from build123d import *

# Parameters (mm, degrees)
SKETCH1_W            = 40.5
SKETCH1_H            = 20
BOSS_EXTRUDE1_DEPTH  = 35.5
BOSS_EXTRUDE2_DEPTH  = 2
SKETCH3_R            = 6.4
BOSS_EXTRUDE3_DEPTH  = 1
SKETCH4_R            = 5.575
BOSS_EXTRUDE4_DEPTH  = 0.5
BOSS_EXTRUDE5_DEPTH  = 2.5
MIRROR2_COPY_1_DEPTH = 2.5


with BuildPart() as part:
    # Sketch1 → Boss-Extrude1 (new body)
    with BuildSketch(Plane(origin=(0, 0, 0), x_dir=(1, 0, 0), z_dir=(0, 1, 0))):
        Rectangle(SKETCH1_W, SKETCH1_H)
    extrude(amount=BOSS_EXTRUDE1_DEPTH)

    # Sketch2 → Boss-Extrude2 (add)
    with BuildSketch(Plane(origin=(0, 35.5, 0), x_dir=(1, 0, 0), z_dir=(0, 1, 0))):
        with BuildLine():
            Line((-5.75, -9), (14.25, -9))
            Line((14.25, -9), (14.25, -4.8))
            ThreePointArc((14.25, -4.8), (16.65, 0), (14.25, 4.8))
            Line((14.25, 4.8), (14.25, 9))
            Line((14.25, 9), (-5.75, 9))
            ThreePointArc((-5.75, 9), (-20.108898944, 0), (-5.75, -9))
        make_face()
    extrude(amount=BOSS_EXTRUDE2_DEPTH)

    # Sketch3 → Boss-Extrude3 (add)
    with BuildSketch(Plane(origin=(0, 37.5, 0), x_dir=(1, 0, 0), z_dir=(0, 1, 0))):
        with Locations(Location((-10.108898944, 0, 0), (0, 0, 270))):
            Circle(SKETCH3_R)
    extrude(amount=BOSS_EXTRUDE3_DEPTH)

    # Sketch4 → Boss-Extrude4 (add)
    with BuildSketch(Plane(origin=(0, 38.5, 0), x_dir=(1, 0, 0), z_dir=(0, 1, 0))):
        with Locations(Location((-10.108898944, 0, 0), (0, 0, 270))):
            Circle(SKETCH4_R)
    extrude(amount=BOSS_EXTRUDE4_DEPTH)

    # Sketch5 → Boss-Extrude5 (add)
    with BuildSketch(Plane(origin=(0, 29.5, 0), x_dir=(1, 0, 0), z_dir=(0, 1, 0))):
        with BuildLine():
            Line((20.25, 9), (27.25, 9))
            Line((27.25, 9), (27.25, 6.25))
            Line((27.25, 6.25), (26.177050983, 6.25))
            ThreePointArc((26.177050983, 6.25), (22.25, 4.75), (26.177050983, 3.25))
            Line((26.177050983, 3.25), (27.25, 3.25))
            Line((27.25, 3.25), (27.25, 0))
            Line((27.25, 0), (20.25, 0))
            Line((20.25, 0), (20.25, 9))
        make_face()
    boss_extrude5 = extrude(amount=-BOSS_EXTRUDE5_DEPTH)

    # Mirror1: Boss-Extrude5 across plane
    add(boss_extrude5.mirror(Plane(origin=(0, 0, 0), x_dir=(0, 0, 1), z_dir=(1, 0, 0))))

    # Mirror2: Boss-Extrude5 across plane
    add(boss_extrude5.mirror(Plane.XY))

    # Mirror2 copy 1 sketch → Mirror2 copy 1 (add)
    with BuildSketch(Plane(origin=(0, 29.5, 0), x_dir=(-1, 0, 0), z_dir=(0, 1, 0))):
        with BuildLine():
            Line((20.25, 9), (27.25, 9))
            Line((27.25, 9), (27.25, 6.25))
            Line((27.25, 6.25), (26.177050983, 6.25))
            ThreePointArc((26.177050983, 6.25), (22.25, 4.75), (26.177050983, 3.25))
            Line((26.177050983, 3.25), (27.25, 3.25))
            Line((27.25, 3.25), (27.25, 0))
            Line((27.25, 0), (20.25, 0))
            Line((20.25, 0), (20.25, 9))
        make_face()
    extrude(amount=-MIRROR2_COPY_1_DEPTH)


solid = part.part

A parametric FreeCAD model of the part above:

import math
import FreeCAD as App
import Part
import Sketcher

V = App.Vector
Q = App.Units.Quantity

doc = App.newDocument("Part")
body = doc.addObject("PartDesign::Body", "Body")

sketch1 = body.newObject("Sketcher::SketchObject", "Sketch")
sketch1.AttachmentSupport = (doc.getObject("XZ_Plane"), [""])
sketch1.MapMode = "FlatFace"
sketch1.addGeometry([
    Part.LineSegment(V(-20, -10, 0), V(-20, 10, 0)),
    Part.LineSegment(V(-20, 10, 0), V(20, 10, 0)),
    Part.LineSegment(V(20, 10, 0), V(20, -10, 0)),
    Part.LineSegment(V(20, -10, 0), V(-20, -10, 0)),
], False)
sketch1.addConstraint([
    Sketcher.Constraint("Coincident", 0, 2, 1, 1),
    Sketcher.Constraint("Coincident", 1, 2, 2, 1),
    Sketcher.Constraint("Coincident", 2, 2, 3, 1),
    Sketcher.Constraint("Coincident", 3, 2, 0, 1),
    Sketcher.Constraint("Vertical", 0),
    Sketcher.Constraint("Horizontal", 1),
    Sketcher.Constraint("Vertical", 2),
    Sketcher.Constraint("Horizontal", 3),
    Sketcher.Constraint("Symmetric", 0, 2, 2, 2, -1, 1),
    Sketcher.Constraint("DistanceY", 0, 1, 0, 2, Q("20 mm")),
    Sketcher.Constraint("DistanceX", 1, 1, 1, 2, Q("40.5 mm")),
])
pad1 = body.newObject("PartDesign::Pad", "Pad")
pad1.Profile = sketch1
pad1.Length = 35.5
pad1.Reversed = True

sketch2 = body.newObject("Sketcher::SketchObject", "Sketch001")
sketch2.AttachmentSupport = (doc.getObject("XZ_Plane"), [""])
sketch2.MapMode = "FlatFace"
sketch2.AttachmentOffset = App.Placement(V(0, 0, -35.5), App.Rotation())
sketch2.addGeometry([
    Part.LineSegment(V(-5.8, 9, 0), V(14.2, 9, 0)),
    Part.LineSegment(V(14.2, 9, 0), V(14.2, 4.8, 0)),
    Part.ArcOfCircle(Part.Circle(V(10.7, 0, 0), V(0, 0, 1), 6), math.radians(-53), math.radians(53)),
    Part.LineSegment(V(14.2, -4.8, 0), V(14.2, -9, 0)),
    Part.LineSegment(V(14.2, -9, 0), V(-5.8, -9, 0)),
    Part.ArcOfCircle(Part.Circle(V(-10.1, 0, 0), V(0, 0, 1), 10), math.radians(64), math.radians(296)),
], False)
sketch2.addConstraint([
    Sketcher.Constraint("Coincident", 0, 2, 1, 1),
    Sketcher.Constraint("Coincident", 1, 2, 2, 2),
    Sketcher.Constraint("Coincident", 2, 1, 3, 1),
    Sketcher.Constraint("Coincident", 3, 2, 4, 1),
    Sketcher.Constraint("Coincident", 4, 2, 5, 2),
    Sketcher.Constraint("Coincident", 5, 1, 0, 1),
    Sketcher.Constraint("Horizontal", 0),
    Sketcher.Constraint("Vertical", 1),
    Sketcher.Constraint("Vertical", 3),
    Sketcher.Constraint("Horizontal", 4),
    Sketcher.Constraint("Symmetric", 1, 2, 2, 1, -1),
    Sketcher.Constraint("Symmetric", 4, 2, 5, 1, -1),
    Sketcher.Constraint("Radius", 2, Q("6 mm")),
    Sketcher.Constraint("Radius", 5, Q("10 mm")),
    Sketcher.Constraint("DistanceX", 0, 1, 0, 2, Q("20 mm")),
    Sketcher.Constraint("DistanceY", 1, 2, 1, 1, Q("4.2 mm")),
    Sketcher.Constraint("DistanceY", -1, 1, 0, 2, Q("9 mm")),
    Sketcher.Constraint("DistanceX", -1, 1, 2, 3, Q("10.65 mm")),
])
pad2 = body.newObject("PartDesign::Pad", "Pad001")
pad2.Profile = sketch2
pad2.Length = 2
pad2.Reversed = True

sketch3 = body.newObject("Sketcher::SketchObject", "Sketch002")
sketch3.AttachmentSupport = (doc.getObject("XZ_Plane"), [""])
sketch3.MapMode = "FlatFace"
sketch3.AttachmentOffset = App.Placement(V(0, 0, -37.5), App.Rotation())
sketch3.addGeometry(Part.Circle(V(-10, 0, 0), V(0, 0, 1), 6), False)
sketch3.addConstraint([
    Sketcher.Constraint("PointOnObject", 0, 3, -1),
    Sketcher.Constraint("Diameter", 0, Q("12.8 mm")),
    Sketcher.Constraint("DistanceX", 0, 3, -1, 1, Q("10.108899 mm")),
])
pad3 = body.newObject("PartDesign::Pad", "Pad002")
pad3.Profile = sketch3
pad3.Length = 1
pad3.Reversed = True

sketch4 = body.newObject("Sketcher::SketchObject", "Sketch003")
sketch4.AttachmentSupport = (doc.getObject("XZ_Plane"), [""])
sketch4.MapMode = "FlatFace"
sketch4.AttachmentOffset = App.Placement(V(0, 0, -38.5), App.Rotation())
sketch4.addGeometry(Part.Circle(V(-10, 0, 0), V(0, 0, 1), 6), False)
sketch4.addConstraint([
    Sketcher.Constraint("PointOnObject", 0, 3, -1),
    Sketcher.Constraint("Diameter", 0, Q("11.15 mm")),
    Sketcher.Constraint("DistanceX", 0, 3, -1, 1, Q("10.108899 mm")),
])
pad4 = body.newObject("PartDesign::Pad", "Pad003")
pad4.Profile = sketch4
pad4.Length = 0.5
pad4.Reversed = True

sketch5 = body.newObject("Sketcher::SketchObject", "Sketch004")
sketch5.AttachmentSupport = (doc.getObject("XZ_Plane"), [""])
sketch5.MapMode = "FlatFace"
sketch5.AttachmentOffset = App.Placement(V(0, 0, -29.5), App.Rotation())
sketch5.addGeometry([
    Part.LineSegment(V(27.2, -9, 0), V(20.2, -9, 0)),
    Part.LineSegment(V(20.2, -9, 0), V(20.2, 0, 0)),
    Part.LineSegment(V(20.2, 0, 0), V(27.2, 0, 0)),
    Part.LineSegment(V(27.2, 0, 0), V(27.2, -3.2, 0)),
    Part.LineSegment(V(27.2, -3.2, 0), V(26.2, -3.2, 0)),
    Part.ArcOfCircle(Part.Circle(V(24.5, -4.8, 0), V(0, 0, 1), 2.2), math.radians(42), math.radians(318)),
    Part.LineSegment(V(26.2, -6.2, 0), V(27.2, -6.2, 0)),
    Part.LineSegment(V(27.2, -6.2, 0), V(27.2, -9, 0)),
], False)
sketch5.addConstraint([
    Sketcher.Constraint("Coincident", 0, 2, 1, 1),
    Sketcher.Constraint("Coincident", 1, 2, 2, 1),
    Sketcher.Constraint("Coincident", 2, 2, 3, 1),
    Sketcher.Constraint("Coincident", 3, 2, 4, 1),
    Sketcher.Constraint("Coincident", 4, 2, 5, 1),
    Sketcher.Constraint("Coincident", 5, 2, 6, 1),
    Sketcher.Constraint("Coincident", 6, 2, 7, 1),
    Sketcher.Constraint("Coincident", 7, 2, 0, 1),
    Sketcher.Constraint("Horizontal", 0),
    Sketcher.Constraint("Vertical", 1),
    Sketcher.Constraint("Horizontal", 2),
    Sketcher.Constraint("Vertical", 3),
    Sketcher.Constraint("Horizontal", 4),
    Sketcher.Constraint("Horizontal", 6),
    Sketcher.Constraint("Vertical", 7),
    Sketcher.Constraint("PointOnObject", 1, 2, -1),
    Sketcher.Constraint("Vertical", 4, 2, 5, 2),
    Sketcher.Constraint("Vertical", 3, 2, 6, 2),
    Sketcher.Constraint("DistanceX", 0, 2, 0, 1, Q("7 mm")),
    Sketcher.Constraint("DistanceY", 1, 1, 1, 2, Q("9 mm")),
    Sketcher.Constraint("Radius", 5, Q("2.25 mm")),
    Sketcher.Constraint("DistanceY", 5, 2, 4, 2, Q("3 mm")),
    Sketcher.Constraint("DistanceY", 3, 2, 3, 1, Q("3.25 mm")),
    Sketcher.Constraint("DistanceX", -1, 1, 5, 3, Q("24.5 mm")),
    Sketcher.Constraint("DistanceX", -1, 1, 0, 2, Q("20.25 mm")),
])
pad5 = body.newObject("PartDesign::Pad", "Pad004")
pad5.Profile = sketch5
pad5.Length = 2.5
doc.recompute()

mirrored = body.newObject("PartDesign::Mirrored", "Mirrored")
mirrored.Originals = [pad5]
mirrored.MirrorPlane = (doc.getObject("YZ_Plane"), [""])
body.Tip = mirrored
doc.recompute()

mirrored2 = body.newObject("PartDesign::Mirrored", "Mirrored001")
mirrored2.Originals = [pad5]
mirrored2.MirrorPlane = (doc.getObject("XY_Plane"), [""])
body.Tip = mirrored2

sketch6 = body.newObject("Sketcher::SketchObject", "Sketch005")
sketch6.AttachmentSupport = (doc.getObject("XZ_Plane"), [""])
sketch6.MapMode = "FlatFace"
sketch6.AttachmentOffset = App.Placement(V(0, 0, -29.5), App.Rotation())
sketch6.addGeometry([
    Part.LineSegment(V(-27.2, 9, 0), V(-20.2, 9, 0)),
    Part.LineSegment(V(-20.2, 9, 0), V(-20.2, 0, 0)),
    Part.LineSegment(V(-20.2, 0, 0), V(-27.2, 0, 0)),
    Part.LineSegment(V(-27.2, 0, 0), V(-27.2, 3.2, 0)),
    Part.LineSegment(V(-27.2, 3.2, 0), V(-26.2, 3.2, 0)),
    Part.ArcOfCircle(Part.Circle(V(-24.5, 4.8, 0), V(0, 0, 1), 2.2), math.radians(-138), math.radians(138)),
    Part.LineSegment(V(-26.2, 6.2, 0), V(-27.2, 6.2, 0)),
    Part.LineSegment(V(-27.2, 6.2, 0), V(-27.2, 9, 0)),
], False)
sketch6.addConstraint([
    Sketcher.Constraint("Coincident", 0, 2, 1, 1),
    Sketcher.Constraint("Coincident", 1, 2, 2, 1),
    Sketcher.Constraint("Coincident", 2, 2, 3, 1),
    Sketcher.Constraint("Coincident", 3, 2, 4, 1),
    Sketcher.Constraint("Coincident", 4, 2, 5, 1),
    Sketcher.Constraint("Coincident", 5, 2, 6, 1),
    Sketcher.Constraint("Coincident", 6, 2, 7, 1),
    Sketcher.Constraint("Coincident", 7, 2, 0, 1),
    Sketcher.Constraint("Horizontal", 0),
    Sketcher.Constraint("Vertical", 1),
    Sketcher.Constraint("Horizontal", 2),
    Sketcher.Constraint("Vertical", 3),
    Sketcher.Constraint("Horizontal", 4),
    Sketcher.Constraint("Horizontal", 6),
    Sketcher.Constraint("Vertical", 7),
    Sketcher.Constraint("PointOnObject", 1, 2, -1),
    Sketcher.Constraint("Vertical", 4, 2, 5, 2),
    Sketcher.Constraint("Vertical", 3, 2, 6, 2),
    Sketcher.Constraint("DistanceX", 0, 1, 0, 2, Q("7 mm")),
    Sketcher.Constraint("DistanceY", 1, 2, 1, 1, Q("9 mm")),
    Sketcher.Constraint("Radius", 5, Q("2.25 mm")),
    Sketcher.Constraint("DistanceY", 4, 2, 5, 2, Q("3 mm")),
    Sketcher.Constraint("DistanceY", 3, 1, 3, 2, Q("3.25 mm")),
    Sketcher.Constraint("DistanceX", 5, 3, -1, 1, Q("24.5 mm")),
    Sketcher.Constraint("DistanceX", 0, 2, -1, 1, Q("20.25 mm")),
])
pad6 = body.newObject("PartDesign::Pad", "Pad005")
pad6.Profile = sketch6
pad6.Length = 2.5

doc.recompute()
